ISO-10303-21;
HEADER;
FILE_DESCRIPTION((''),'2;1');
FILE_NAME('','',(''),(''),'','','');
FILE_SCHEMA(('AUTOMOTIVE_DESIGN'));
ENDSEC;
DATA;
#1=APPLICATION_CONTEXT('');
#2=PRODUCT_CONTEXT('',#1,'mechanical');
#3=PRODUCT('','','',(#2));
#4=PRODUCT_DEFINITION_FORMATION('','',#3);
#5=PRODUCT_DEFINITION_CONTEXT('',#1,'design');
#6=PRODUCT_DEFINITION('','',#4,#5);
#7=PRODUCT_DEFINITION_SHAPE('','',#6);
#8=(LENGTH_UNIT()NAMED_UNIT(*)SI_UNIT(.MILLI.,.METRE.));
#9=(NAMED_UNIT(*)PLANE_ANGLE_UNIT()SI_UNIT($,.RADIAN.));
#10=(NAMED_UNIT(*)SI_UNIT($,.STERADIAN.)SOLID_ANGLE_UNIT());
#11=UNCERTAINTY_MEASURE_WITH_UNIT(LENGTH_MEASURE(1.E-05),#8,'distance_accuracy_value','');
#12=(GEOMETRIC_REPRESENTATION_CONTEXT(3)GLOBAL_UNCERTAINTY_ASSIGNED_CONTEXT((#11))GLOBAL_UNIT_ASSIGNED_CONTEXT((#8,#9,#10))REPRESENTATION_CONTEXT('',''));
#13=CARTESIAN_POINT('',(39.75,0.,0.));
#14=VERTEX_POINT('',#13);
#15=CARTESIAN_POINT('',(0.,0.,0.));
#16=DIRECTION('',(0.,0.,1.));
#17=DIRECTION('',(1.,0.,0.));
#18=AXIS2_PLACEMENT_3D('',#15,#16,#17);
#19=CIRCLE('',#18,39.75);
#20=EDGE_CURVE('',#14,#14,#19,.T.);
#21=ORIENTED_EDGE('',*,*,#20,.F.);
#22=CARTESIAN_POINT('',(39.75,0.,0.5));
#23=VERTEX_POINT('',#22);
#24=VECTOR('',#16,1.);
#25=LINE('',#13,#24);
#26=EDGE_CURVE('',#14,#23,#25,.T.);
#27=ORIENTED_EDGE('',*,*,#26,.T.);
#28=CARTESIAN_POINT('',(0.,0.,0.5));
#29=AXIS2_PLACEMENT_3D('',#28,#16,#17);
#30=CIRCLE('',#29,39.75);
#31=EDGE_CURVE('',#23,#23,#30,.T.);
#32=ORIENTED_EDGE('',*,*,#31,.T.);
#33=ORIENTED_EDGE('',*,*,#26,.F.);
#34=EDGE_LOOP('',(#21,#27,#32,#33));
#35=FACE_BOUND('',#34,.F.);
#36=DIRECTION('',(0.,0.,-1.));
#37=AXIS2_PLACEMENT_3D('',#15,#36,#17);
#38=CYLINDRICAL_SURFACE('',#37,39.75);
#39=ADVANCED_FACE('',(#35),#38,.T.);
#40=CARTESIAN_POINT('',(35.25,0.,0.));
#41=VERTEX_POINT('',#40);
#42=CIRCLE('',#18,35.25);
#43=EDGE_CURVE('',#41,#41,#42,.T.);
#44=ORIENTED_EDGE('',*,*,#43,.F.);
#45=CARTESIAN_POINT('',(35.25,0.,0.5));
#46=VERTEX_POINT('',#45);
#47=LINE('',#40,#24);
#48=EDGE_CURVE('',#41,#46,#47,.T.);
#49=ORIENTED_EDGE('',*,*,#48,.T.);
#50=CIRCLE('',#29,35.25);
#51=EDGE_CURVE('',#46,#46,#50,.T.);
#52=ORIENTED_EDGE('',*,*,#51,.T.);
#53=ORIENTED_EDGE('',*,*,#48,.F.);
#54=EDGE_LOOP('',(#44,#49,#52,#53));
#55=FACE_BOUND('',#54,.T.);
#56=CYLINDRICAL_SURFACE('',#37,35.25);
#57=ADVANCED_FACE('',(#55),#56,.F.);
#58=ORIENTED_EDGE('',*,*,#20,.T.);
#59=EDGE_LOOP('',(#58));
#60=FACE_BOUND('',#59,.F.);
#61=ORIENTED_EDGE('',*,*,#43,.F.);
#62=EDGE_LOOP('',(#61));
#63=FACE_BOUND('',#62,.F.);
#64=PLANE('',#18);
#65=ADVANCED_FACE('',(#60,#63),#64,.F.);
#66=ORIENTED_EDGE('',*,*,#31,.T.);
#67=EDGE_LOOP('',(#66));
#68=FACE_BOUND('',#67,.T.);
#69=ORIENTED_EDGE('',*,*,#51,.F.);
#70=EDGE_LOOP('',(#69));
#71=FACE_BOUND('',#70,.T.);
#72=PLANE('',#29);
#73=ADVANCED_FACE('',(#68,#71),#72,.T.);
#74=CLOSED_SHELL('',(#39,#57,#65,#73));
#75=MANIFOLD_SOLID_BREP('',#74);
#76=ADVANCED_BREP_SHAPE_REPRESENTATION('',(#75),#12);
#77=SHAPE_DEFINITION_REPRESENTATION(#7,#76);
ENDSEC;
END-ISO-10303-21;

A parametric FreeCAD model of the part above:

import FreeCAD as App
import Part
import Sketcher
Q = App.Units.Quantity

doc = App.newDocument("Part")
body = doc.addObject("PartDesign::Body", "Body")

sketch1 = doc.addObject("Sketcher::SketchObject", "Sketch")
body.addObject(sketch1)
sketch1.AttachmentSupport = (doc.XY_Plane, [""])
sketch1.MapMode = "FlatFace"
sketch1.addGeometry(Part.Circle(App.Vector(0, 0, 0), App.Vector(0, 0, 1), 40), False)
sketch1.addGeometry(Part.Circle(App.Vector(0, 0, 0), App.Vector(0, 0, 1), 35), False)
sketch1.addConstraint(Sketcher.Constraint("Coincident", 0, 3, -1, 1))
sketch1.addConstraint(Sketcher.Constraint("Coincident", 1, 3, -1, 1))
sketch1.addConstraint(Sketcher.Constraint("Diameter", 0, Q("79.5 mm")))
sketch1.addConstraint(Sketcher.Constraint("Diameter", 1, Q("70.5 mm")))
pad1 = doc.addObject("PartDesign::Pad", "Pad")
body.addObject(pad1)
pad1.Profile = sketch1
pad1.Length = 0.5

doc.recompute()
